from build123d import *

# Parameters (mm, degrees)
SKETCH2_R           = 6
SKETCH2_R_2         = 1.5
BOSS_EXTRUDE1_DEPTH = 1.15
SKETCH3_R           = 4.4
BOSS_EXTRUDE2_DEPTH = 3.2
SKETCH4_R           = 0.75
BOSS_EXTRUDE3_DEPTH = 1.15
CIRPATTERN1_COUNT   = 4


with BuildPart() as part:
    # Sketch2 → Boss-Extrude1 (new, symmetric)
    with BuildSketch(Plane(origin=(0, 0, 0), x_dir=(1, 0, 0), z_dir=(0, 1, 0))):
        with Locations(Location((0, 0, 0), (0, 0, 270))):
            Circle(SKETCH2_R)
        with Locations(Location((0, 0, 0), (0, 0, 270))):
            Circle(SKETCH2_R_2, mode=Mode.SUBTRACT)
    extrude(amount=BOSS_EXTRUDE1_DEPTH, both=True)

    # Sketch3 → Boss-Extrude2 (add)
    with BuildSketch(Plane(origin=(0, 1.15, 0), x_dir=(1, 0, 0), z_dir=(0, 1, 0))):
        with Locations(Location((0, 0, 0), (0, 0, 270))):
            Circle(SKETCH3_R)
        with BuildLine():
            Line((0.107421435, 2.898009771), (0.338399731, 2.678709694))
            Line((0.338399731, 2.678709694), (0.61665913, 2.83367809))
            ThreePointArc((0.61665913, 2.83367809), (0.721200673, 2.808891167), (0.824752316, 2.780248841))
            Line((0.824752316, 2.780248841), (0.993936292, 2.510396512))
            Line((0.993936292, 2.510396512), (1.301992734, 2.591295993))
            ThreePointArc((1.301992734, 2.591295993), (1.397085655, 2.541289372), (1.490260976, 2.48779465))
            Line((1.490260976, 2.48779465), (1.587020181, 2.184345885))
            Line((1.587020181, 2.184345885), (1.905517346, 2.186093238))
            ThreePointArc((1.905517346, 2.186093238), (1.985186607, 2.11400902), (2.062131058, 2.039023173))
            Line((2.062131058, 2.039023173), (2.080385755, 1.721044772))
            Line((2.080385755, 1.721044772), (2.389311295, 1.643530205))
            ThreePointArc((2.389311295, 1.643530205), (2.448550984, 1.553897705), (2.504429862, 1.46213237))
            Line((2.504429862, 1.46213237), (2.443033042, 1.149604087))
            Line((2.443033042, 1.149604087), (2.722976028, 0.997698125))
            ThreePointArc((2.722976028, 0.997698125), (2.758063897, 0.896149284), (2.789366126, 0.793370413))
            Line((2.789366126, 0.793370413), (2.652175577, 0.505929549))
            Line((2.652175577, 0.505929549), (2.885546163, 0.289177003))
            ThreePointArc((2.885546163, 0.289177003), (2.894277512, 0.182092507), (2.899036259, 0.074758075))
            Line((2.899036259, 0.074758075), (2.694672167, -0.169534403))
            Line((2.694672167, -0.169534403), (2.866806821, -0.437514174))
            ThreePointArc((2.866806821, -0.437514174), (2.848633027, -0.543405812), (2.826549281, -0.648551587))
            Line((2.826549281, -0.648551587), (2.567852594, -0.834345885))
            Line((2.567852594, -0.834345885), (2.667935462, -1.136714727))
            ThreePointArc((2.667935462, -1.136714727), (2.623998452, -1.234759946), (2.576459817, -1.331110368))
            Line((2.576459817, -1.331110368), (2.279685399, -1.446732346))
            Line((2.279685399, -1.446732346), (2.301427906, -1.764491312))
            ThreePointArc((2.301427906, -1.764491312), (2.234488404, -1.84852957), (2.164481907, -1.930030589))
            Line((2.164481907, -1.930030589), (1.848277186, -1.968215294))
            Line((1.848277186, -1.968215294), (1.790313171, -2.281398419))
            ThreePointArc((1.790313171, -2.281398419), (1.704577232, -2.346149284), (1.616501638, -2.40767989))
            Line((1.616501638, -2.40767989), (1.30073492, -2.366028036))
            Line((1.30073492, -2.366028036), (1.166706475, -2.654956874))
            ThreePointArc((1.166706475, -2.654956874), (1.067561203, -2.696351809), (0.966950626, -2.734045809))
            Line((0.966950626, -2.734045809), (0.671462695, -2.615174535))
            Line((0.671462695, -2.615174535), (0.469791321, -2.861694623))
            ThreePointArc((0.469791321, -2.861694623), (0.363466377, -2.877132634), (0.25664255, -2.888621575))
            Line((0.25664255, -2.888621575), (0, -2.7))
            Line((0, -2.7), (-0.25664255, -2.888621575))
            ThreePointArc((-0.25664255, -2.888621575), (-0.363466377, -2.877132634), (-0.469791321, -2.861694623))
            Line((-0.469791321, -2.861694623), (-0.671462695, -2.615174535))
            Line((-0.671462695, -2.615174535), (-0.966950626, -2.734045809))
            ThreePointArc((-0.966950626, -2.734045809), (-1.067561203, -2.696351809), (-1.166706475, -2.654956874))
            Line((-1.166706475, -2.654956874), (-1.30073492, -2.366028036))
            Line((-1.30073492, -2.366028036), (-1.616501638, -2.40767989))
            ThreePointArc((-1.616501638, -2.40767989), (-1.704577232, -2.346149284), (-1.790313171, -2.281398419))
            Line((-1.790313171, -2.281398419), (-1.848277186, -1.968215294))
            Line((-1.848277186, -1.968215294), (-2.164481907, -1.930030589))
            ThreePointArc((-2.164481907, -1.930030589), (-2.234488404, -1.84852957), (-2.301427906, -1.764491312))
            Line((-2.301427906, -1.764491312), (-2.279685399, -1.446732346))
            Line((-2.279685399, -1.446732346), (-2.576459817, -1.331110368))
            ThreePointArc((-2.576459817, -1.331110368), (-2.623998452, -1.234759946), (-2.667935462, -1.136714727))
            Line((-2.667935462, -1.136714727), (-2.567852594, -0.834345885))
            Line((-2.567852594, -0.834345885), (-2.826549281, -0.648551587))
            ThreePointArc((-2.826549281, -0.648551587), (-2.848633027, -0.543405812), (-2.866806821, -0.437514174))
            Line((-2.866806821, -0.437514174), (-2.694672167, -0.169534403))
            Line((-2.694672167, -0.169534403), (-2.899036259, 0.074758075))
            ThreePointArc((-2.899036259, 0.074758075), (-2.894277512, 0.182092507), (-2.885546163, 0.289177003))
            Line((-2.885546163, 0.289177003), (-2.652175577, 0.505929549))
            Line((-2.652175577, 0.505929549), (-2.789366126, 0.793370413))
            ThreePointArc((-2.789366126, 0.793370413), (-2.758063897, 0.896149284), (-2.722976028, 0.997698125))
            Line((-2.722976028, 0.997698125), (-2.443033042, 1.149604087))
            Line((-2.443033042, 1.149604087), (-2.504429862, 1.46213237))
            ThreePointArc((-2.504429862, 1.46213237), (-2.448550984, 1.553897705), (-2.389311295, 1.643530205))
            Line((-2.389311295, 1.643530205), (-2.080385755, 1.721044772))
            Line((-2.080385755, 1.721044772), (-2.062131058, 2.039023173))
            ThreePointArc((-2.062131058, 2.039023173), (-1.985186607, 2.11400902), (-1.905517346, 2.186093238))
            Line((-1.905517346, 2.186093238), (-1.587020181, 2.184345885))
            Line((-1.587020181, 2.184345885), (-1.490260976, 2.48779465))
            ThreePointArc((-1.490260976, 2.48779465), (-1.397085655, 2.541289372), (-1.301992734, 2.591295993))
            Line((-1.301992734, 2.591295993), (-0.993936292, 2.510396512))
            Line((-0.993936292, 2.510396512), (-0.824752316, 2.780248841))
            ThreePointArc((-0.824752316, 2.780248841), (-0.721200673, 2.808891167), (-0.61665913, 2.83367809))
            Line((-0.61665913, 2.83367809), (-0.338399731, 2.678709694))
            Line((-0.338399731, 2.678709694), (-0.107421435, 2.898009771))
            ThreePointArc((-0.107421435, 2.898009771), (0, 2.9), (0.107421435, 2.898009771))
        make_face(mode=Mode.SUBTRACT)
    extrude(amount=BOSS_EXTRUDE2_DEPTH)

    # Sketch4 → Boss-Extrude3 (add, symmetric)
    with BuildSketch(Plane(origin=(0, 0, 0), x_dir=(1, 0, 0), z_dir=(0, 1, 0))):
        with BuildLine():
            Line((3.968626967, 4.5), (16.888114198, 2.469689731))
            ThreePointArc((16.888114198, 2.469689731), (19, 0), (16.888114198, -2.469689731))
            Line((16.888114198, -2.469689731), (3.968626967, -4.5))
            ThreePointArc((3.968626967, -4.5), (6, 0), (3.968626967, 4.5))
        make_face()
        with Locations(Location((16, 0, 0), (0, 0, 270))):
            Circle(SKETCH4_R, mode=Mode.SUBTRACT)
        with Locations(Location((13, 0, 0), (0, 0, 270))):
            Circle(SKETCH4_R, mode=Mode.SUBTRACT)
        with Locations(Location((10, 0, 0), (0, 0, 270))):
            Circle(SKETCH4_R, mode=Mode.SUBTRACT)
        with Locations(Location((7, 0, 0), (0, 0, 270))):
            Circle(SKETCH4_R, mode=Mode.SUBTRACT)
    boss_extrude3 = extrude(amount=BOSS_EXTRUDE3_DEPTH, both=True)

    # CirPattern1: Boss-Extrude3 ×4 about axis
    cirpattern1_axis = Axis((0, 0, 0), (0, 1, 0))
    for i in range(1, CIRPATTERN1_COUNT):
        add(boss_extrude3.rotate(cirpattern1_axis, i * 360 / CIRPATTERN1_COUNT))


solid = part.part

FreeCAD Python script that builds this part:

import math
import FreeCAD as App
import Part
import Sketcher
Q = App.Units.Quantity

doc = App.newDocument("Part")
body = doc.addObject("PartDesign::Body", "Body")

# Sketch on XZ plane
sketch1 = body.newObject("Sketcher::SketchObject", "Sketch")
sketch1.AttachmentSupport = (doc.getObject("XZ_Plane"), [""])
sketch1.MapMode = "FlatFace"
sketch1.addGeometry(Part.Circle(App.Vector(0, 0, 0), App.Vector(0, 0, 1), 6), False)
sketch1.addGeometry(Part.Circle(App.Vector(0, 0, 0), App.Vector(0, 0, 1), 1.5), False)
sketch1.addConstraint(Sketcher.Constraint("Coincident", 0, 3, -1, 1))
sketch1.addConstraint(Sketcher.Constraint("Coincident", 1, 3, -1, 1))
sketch1.addConstraint(Sketcher.Constraint("Diameter", 0, Q("12 mm")))
sketch1.addConstraint(Sketcher.Constraint("Diameter", 1, Q("3 mm")))
pad1 = body.newObject("PartDesign::Pad", "Pad")
pad1.Profile = sketch1
pad1.Length = 2.3
pad1.Midplane = True

# Sketch on XZ plane
sketch2 = body.newObject("Sketcher::SketchObject", "Sketch001")
sketch2.AttachmentSupport = (doc.getObject("XZ_Plane"), [""])
sketch2.MapMode = "FlatFace"
sketch2.AttachmentOffset = App.Placement(App.Vector(0, 0, -1.15), App.Rotation())
sketch2.addGeometry(Part.Circle(App.Vector(0, 0, 0), App.Vector(0, 0, 1), 4.4), False)
sketch2.addGeometry(Part.ArcOfCircle(Part.Circle(App.Vector(0, -0.000001, 0), App.Vector(0, 0, 1), 2.899999), math.radians(-92.122829), math.radians(-87.877171)), False)
sketch2.addGeometry(Part.LineSegment(App.Vector(0.107421, -2.89801, 0), App.Vector(0.3384, -2.67871, 0)), False)
sketch2.addGeometry(Part.LineSegment(App.Vector(0.3384, -2.67871, 0), App.Vector(0.616659, -2.833678, 0)), False)
sketch2.addGeometry(Part.ArcOfCircle(Part.Circle(App.Vector(0, 0, 0), App.Vector(0, 0, 1), 2.9), math.radians(-77.722828), math.radians(-73.477172)), False)
sketch2.addGeometry(Part.LineSegment(App.Vector(0.824752, -2.780249, 0), App.Vector(0.993936, -2.510397, 0)), False)
sketch2.addGeometry(Part.LineSegment(App.Vector(0.993936, -2.510397, 0), App.Vector(1.301993, -2.591296, 0)), False)
sketch2.addGeometry(Part.ArcOfCircle(Part.Circle(App.Vector(0, 0, 0), App.Vector(0, 0, 1), 2.9), math.radians(-63.322828), math.radians(-59.077171)), False)
sketch2.addGeometry(Part.LineSegment(App.Vector(1.490261, -2.487795, 0), App.Vector(1.58702, -2.184346, 0)), False)
sketch2.addGeometry(Part.LineSegment(App.Vector(1.58702, -2.184346, 0), App.Vector(1.905517, -2.186093, 0)), False)
sketch2.addGeometry(Part.ArcOfCircle(Part.Circle(App.Vector(0, 0, 0), App.Vector(0, 0, 1), 2.9), math.radians(-48.922829), math.radians(-44.677171)), False)
sketch2.addGeometry(Part.LineSegment(App.Vector(2.062131, -2.039023, 0), App.Vector(2.080386, -1.721045, 0)), False)
sketch2.addGeometry(Part.LineSegment(App.Vector(2.080386, -1.721045, 0), App.Vector(2.389311, -1.64353, 0)), False)
sketch2.addGeometry(Part.ArcOfCircle(Part.Circle(App.Vector(0, 0, 0), App.Vector(0, 0, 1), 2.9), math.radians(-34.522829), math.radians(-30.277172)), False)
sketch2.addGeometry(Part.LineSegment(App.Vector(2.50443, -1.462132, 0), App.Vector(2.443033, -1.149604, 0)), False)
sketch2.addGeometry(Part.LineSegment(App.Vector(2.443033, -1.149604, 0), App.Vector(2.722976, -0.997698, 0)), False)
sketch2.addGeometry(Part.ArcOfCircle(Part.Circle(App.Vector(0, 0, 0), App.Vector(0, 0, 1), 2.9), math.radians(-20.122829), math.radians(-15.877171)), False)
sketch2.addGeometry(Part.LineSegment(App.Vector(2.789366, -0.79337, 0), App.Vector(2.652176, -0.50593, 0)), False)
sketch2.addGeometry(Part.LineSegment(App.Vector(2.652176, -0.50593, 0), App.Vector(2.885546, -0.289177, 0)), False)
sketch2.addGeometry(Part.ArcOfCircle(Part.Circle(App.Vector(0, 0, 0), App.Vector(0, 0, 1), 2.9), math.radians(-5.722829), math.radians(-1.477172)), False)
sketch2.addGeometry(Part.LineSegment(App.Vector(2.899036, -0.074758, 0), App.Vector(2.694672, 0.169534, 0)), False)
sketch2.addGeometry(Part.LineSegment(App.Vector(2.694672, 0.169534, 0), App.Vector(2.866807, 0.437514, 0)), False)
sketch2.addGeometry(Part.ArcOfCircle(Part.Circle(App.Vector(0, 0, 0), App.Vector(0, 0, 1), 2.9), math.radians(8.677172), math.radians(12.922829)), False)
sketch2.addGeometry(Part.LineSegment(App.Vector(2.826549, 0.648552, 0), App.Vector(2.567853, 0.834346, 0)), False)
sketch2.addGeometry(Part.LineSegment(App.Vector(2.567853, 0.834346, 0), App.Vector(2.667935, 1.136715, 0)), False)
sketch2.addGeometry(Part.ArcOfCircle(Part.Circle(App.Vector(0, 0, 0), App.Vector(0, 0, 1), 2.9), math.radians(23.077171), math.radians(27.322829)), False)
sketch2.addGeometry(Part.LineSegment(App.Vector(2.57646, 1.33111, 0), App.Vector(2.279685, 1.446732, 0)), False)
sketch2.addGeometry(Part.LineSegment(App.Vector(2.279685, 1.446732, 0), App.Vector(2.301428, 1.764491, 0)), False)
sketch2.addGeometry(Part.ArcOfCircle(Part.Circle(App.Vector(0, 0, 0), App.Vector(0, 0, 1), 2.9), math.radians(37.477171), math.radians(41.722829)), False)
sketch2.addGeometry(Part.LineSegment(App.Vector(2.164482, 1.930031, 0), App.Vector(1.848277, 1.968215, 0)), False)
sketch2.addGeometry(Part.LineSegment(App.Vector(1.848277, 1.968215, 0), App.Vector(1.790313, 2.281398, 0)), False)
sketch2.addGeometry(Part.ArcOfCircle(Part.Circle(App.Vector(0.000001, 0.000001, 0), App.Vector(0, 0, 1), 2.899999), math.radians(51.87717), math.radians(56.12283)), False)
sketch2.addGeometry(Part.LineSegment(App.Vector(1.616502, 2.40768, 0), App.Vector(1.300735, 2.366028, 0)), False)
sketch2.addGeometry(Part.LineSegment(App.Vector(1.300735, 2.366028, 0), App.Vector(1.166706, 2.654957, 0)), False)
sketch2.addGeometry(Part.ArcOfCircle(Part.Circle(App.Vector(0, 0, 0), App.Vector(0, 0, 1), 2.9), math.radians(66.277171), math.radians(70.522829)), False)
sketch2.addGeometry(Part.LineSegment(App.Vector(0.966951, 2.734046, 0), App.Vector(0.671463, 2.615175, 0)), False)
sketch2.addGeometry(Part.LineSegment(App.Vector(0.671463, 2.615175, 0), App.Vector(0.469791, 2.861695, 0)), False)
sketch2.addGeometry(Part.ArcOfCircle(Part.Circle(App.Vector(0, 0, 0), App.Vector(0, 0, 1), 2.9), math.radians(80.677171), math.radians(84.922829)), False)
sketch2.addGeometry(Part.LineSegment(App.Vector(0.256643, 2.888622, 0), App.Vector(0, 2.7, 0)), False)
sketch2.addGeometry(Part.LineSegment(App.Vector(0, 2.7, 0), App.Vector(-0.256643, 2.888622, 0)), False)
sketch2.addGeometry(Part.ArcOfCircle(Part.Circle(App.Vector(0, 0, 0), App.Vector(0, 0, 1), 2.9), math.radians(95.077171), math.radians(99.322829)), False)
sketch2.addGeometry(Part.LineSegment(App.Vector(-0.469791, 2.861695, 0), App.Vector(-0.671463, 2.615175, 0)), False)
sketch2.addGeometry(Part.LineSegment(App.Vector(-0.671463, 2.615175, 0), App.Vector(-0.966951, 2.734046, 0)), False)
sketch2.addGeometry(Part.ArcOfCircle(Part.Circle(App.Vector(0, 0, 0), App.Vector(0, 0, 1), 2.9), math.radians(109.477171), math.radians(113.722829)), False)
sketch2.addGeometry(Part.LineSegment(App.Vector(-1.166706, 2.654957, 0), App.Vector(-1.300735, 2.366028, 0)), False)
sketch2.addGeometry(Part.LineSegment(App.Vector(-1.300735, 2.366028, 0), App.Vector(-1.616502, 2.40768, 0)), False)
sketch2.addGeometry(Part.ArcOfCircle(Part.Circle(App.Vector(-0.000001, 0.000001, 0), App.Vector(0, 0, 1), 2.899999), math.radians(123.87717), math.radians(128.12283)), False)
sketch2.addGeometry(Part.LineSegment(App.Vector(-1.790313, 2.281398, 0), App.Vector(-1.848277, 1.968215, 0)), False)
sketch2.addGeometry(Part.LineSegment(App.Vector(-1.848277, 1.968215, 0), App.Vector(-2.164482, 1.930031, 0)), False)
sketch2.addGeometry(Part.ArcOfCircle(Part.Circle(App.Vector(0, 0, 0), App.Vector(0, 0, 1), 2.9), math.radians(138.277171), math.radians(142.522829)), False)
sketch2.addGeometry(Part.LineSegment(App.Vector(-2.301428, 1.764491, 0), App.Vector(-2.279685, 1.446732, 0)), False)
sketch2.addGeometry(Part.LineSegment(App.Vector(-2.279685, 1.446732, 0), App.Vector(-2.57646, 1.33111, 0)), False)
sketch2.addGeometry(Part.ArcOfCircle(Part.Circle(App.Vector(0, 0, 0), App.Vector(0, 0, 1), 2.9), math.radians(152.677171), math.radians(156.922829)), False)
sketch2.addGeometry(Part.LineSegment(App.Vector(-2.667935, 1.136715, 0), App.Vector(-2.567853, 0.834346, 0)), False)
sketch2.addGeometry(Part.LineSegment(App.Vector(-2.567853, 0.834346, 0), App.Vector(-2.826549, 0.648552, 0)), False)
sketch2.addGeometry(Part.ArcOfCircle(Part.Circle(App.Vector(0, 0, 0), App.Vector(0, 0, 1), 2.9), math.radians(167.077171), math.radians(171.322828)), False)
sketch2.addGeometry(Part.LineSegment(App.Vector(-2.866807, 0.437514, 0), App.Vector(-2.694672, 0.169534, 0)), False)
sketch2.addGeometry(Part.LineSegment(App.Vector(-2.694672, 0.169534, 0), App.Vector(-2.899036, -0.074758, 0)), False)
sketch2.addGeometry(Part.ArcOfCircle(Part.Circle(App.Vector(0, 0, 0), App.Vector(0, 0, 1), 2.9), math.radians(-178.522828), math.radians(-174.277171)), False)
sketch2.addGeometry(Part.LineSegment(App.Vector(-2.885546, -0.289177, 0), App.Vector(-2.652176, -0.50593, 0)), False)
sketch2.addGeometry(Part.LineSegment(App.Vector(-2.652176, -0.50593, 0), App.Vector(-2.789366, -0.79337, 0)), False)
sketch2.addGeometry(Part.ArcOfCircle(Part.Circle(App.Vector(0, 0, 0), App.Vector(0, 0, 1), 2.9), math.radians(-164.122829), math.radians(-159.877171)), False)
sketch2.addGeometry(Part.LineSegment(App.Vector(-2.722976, -0.997698, 0), App.Vector(-2.443033, -1.149604, 0)), False)
sketch2.addGeometry(Part.LineSegment(App.Vector(-2.443033, -1.149604, 0), App.Vector(-2.50443, -1.462132, 0)), False)
sketch2.addGeometry(Part.ArcOfCircle(Part.Circle(App.Vector(0, 0, 0), App.Vector(0, 0, 1), 2.9), math.radians(-149.722828), math.radians(-145.477171)), False)
sketch2.addGeometry(Part.LineSegment(App.Vector(-2.389311, -1.64353, 0), App.Vector(-2.080386, -1.721045, 0)), False)
sketch2.addGeometry(Part.LineSegment(App.Vector(-2.080386, -1.721045, 0), App.Vector(-2.062131, -2.039023, 0)), False)
sketch2.addGeometry(Part.ArcOfCircle(Part.Circle(App.Vector(0, 0, 0), App.Vector(0, 0, 1), 2.9), math.radians(-135.322829), math.radians(-131.077171)), False)
sketch2.addGeometry(Part.LineSegment(App.Vector(-1.905517, -2.186093, 0), App.Vector(-1.58702, -2.184346, 0)), False)
sketch2.addGeometry(Part.LineSegment(App.Vector(-1.58702, -2.184346, 0), App.Vector(-1.490261, -2.487795, 0)), False)
sketch2.addGeometry(Part.ArcOfCircle(Part.Circle(App.Vector(0, 0, 0), App.Vector(0, 0, 1), 2.9), math.radians(-120.922829), math.radians(-116.677172)), False)
sketch2.addGeometry(Part.LineSegment(App.Vector(-1.301993, -2.591296, 0), App.Vector(-0.993936, -2.510397, 0)), False)
sketch2.addGeometry(Part.LineSegment(App.Vector(-0.993936, -2.510397, 0), App.Vector(-0.824752, -2.780249, 0)), False)
sketch2.addGeometry(Part.ArcOfCircle(Part.Circle(App.Vector(0, 0, 0), App.Vector(0, 0, 1), 2.9), math.radians(-106.522828), math.radians(-102.277172)), False)
sketch2.addGeometry(Part.LineSegment(App.Vector(-0.616659, -2.833678, 0), App.Vector(-0.3384, -2.67871, 0)), False)
sketch2.addGeometry(Part.LineSegment(App.Vector(-0.3384, -2.67871, 0), App.Vector(-0.107421, -2.89801, 0)), False)
sketch2.addConstraint(Sketcher.Constraint("Coincident", 1, 2, 2, 1))
sketch2.addConstraint(Sketcher.Constraint("Coincident", 2, 2, 3, 1))
sketch2.addConstraint(Sketcher.Constraint("Coincident", 3, 2, 4, 1))
sketch2.addConstraint(Sketcher.Constraint("Coincident", 4, 2, 5, 1))
sketch2.addConstraint(Sketcher.Constraint("Coincident", 5, 2, 6, 1))
sketch2.addConstraint(Sketcher.Constraint("Coincident", 6, 2, 7, 1))
sketch2.addConstraint(Sketcher.Constraint("Coincident", 7, 2, 8, 1))
sketch2.addConstraint(Sketcher.Constraint("Coincident", 8, 2, 9, 1))
sketch2.addConstraint(Sketcher.Constraint("Coincident", 9, 2, 10, 1))
sketch2.addConstraint(Sketcher.Constraint("Coincident", 10, 2, 11, 1))
sketch2.addConstraint(Sketcher.Constraint("Coincident", 11, 2, 12, 1))
sketch2.addConstraint(Sketcher.Constraint("Coincident", 12, 2, 13, 1))
sketch2.addConstraint(Sketcher.Constraint("Coincident", 13, 2, 14, 1))
sketch2.addConstraint(Sketcher.Constraint("Coincident", 14, 2, 15, 1))
sketch2.addConstraint(Sketcher.Constraint("Coincident", 15, 2, 16, 1))
sketch2.addConstraint(Sketcher.Constraint("Coincident", 16, 2, 17, 1))
sketch2.addConstraint(Sketcher.Constraint("Coincident", 17, 2, 18, 1))
sketch2.addConstraint(Sketcher.Constraint("Coincident", 18, 2, 19, 1))
sketch2.addConstraint(Sketcher.Constraint("Coincident", 19, 2, 20, 1))
sketch2.addConstraint(Sketcher.Constraint("Coincident", 20, 2, 21, 1))
sketch2.addConstraint(Sketcher.Constraint("Coincident", 21, 2, 22, 1))
sketch2.addConstraint(Sketcher.Constraint("Coincident", 22, 2, 23, 1))
sketch2.addConstraint(Sketcher.Constraint("Coincident", 23, 2, 24, 1))
sketch2.addConstraint(Sketcher.Constraint("Coincident", 24, 2, 25, 1))
sketch2.addConstraint(Sketcher.Constraint("Coincident", 25, 2, 26, 1))
sketch2.addConstraint(Sketcher.Constraint("Coincident", 26, 2, 27, 1))
sketch2.addConstraint(Sketcher.Constraint("Coincident", 27, 2, 28, 1))
sketch2.addConstraint(Sketcher.Constraint("Coincident", 28, 2, 29, 1))
sketch2.addConstraint(Sketcher.Constraint("Coincident", 29, 2, 30, 1))
sketch2.addConstraint(Sketcher.Constraint("Coincident", 30, 2, 31, 1))
sketch2.addConstraint(Sketcher.Constraint("Coincident", 31, 2, 32, 1))
sketch2.addConstraint(Sketcher.Constraint("Coincident", 32, 2, 33, 1))
sketch2.addConstraint(Sketcher.Constraint("Coincident", 33, 2, 34, 1))
sketch2.addConstraint(Sketcher.Constraint("Coincident", 34, 2, 35, 1))
sketch2.addConstraint(Sketcher.Constraint("Coincident", 35, 2, 36, 1))
sketch2.addConstraint(Sketcher.Constraint("Coincident", 36, 2, 37, 1))
sketch2.addConstraint(Sketcher.Constraint("Coincident", 37, 2, 38, 1))
sketch2.addConstraint(Sketcher.Constraint("Coincident", 38, 2, 39, 1))
sketch2.addConstraint(Sketcher.Constraint("Coincident", 39, 2, 40, 1))
sketch2.addConstraint(Sketcher.Constraint("Coincident", 40, 2, 41, 1))
sketch2.addConstraint(Sketcher.Constraint("Coincident", 41, 2, 42, 1))
sketch2.addConstraint(Sketcher.Constraint("Coincident", 42, 2, 43, 1))
sketch2.addConstraint(Sketcher.Constraint("Coincident", 43, 2, 44, 1))
sketch2.addConstraint(Sketcher.Constraint("Coincident", 44, 2, 45, 1))
sketch2.addConstraint(Sketcher.Constraint("Coincident", 45, 2, 46, 1))
sketch2.addConstraint(Sketcher.Constraint("Coincident", 46, 2, 47, 1))
sketch2.addConstraint(Sketcher.Constraint("Coincident", 47, 2, 48, 1))
sketch2.addConstraint(Sketcher.Constraint("Coincident", 48, 2, 49, 1))
sketch2.addConstraint(Sketcher.Constraint("Coincident", 49, 2, 50, 1))
sketch2.addConstraint(Sketcher.Constraint("Coincident", 50, 2, 51, 1))
sketch2.addConstraint(Sketcher.Constraint("Coincident", 51, 2, 52, 1))
sketch2.addConstraint(Sketcher.Constraint("Coincident", 52, 2, 53, 1))
sketch2.addConstraint(Sketcher.Constraint("Coincident", 53, 2, 54, 1))
sketch2.addConstraint(Sketcher.Constraint("Coincident", 54, 2, 55, 1))
sketch2.addConstraint(Sketcher.Constraint("Coincident", 55, 2, 56, 1))
sketch2.addConstraint(Sketcher.Constraint("Coincident", 56, 2, 57, 1))
sketch2.addConstraint(Sketcher.Constraint("Coincident", 57, 2, 58, 1))
sketch2.addConstraint(Sketcher.Constraint("Coincident", 58, 2, 59, 1))
sketch2.addConstraint(Sketcher.Constraint("Coincident", 59, 2, 60, 1))
sketch2.addConstraint(Sketcher.Constraint("Coincident", 60, 2, 61, 1))
sketch2.addConstraint(Sketcher.Constraint("Coincident", 61, 2, 62, 1))
sketch2.addConstraint(Sketcher.Constraint("Coincident", 62, 2, 63, 1))
sketch2.addConstraint(Sketcher.Constraint("Coincident", 63, 2, 64, 1))
sketch2.addConstraint(Sketcher.Constraint("Coincident", 64, 2, 65, 1))
sketch2.addConstraint(Sketcher.Constraint("Coincident", 65, 2, 66, 1))
sketch2.addConstraint(Sketcher.Constraint("Coincident", 66, 2, 67, 1))
sketch2.addConstraint(Sketcher.Constraint("Coincident", 67, 2, 68, 1))
sketch2.addConstraint(Sketcher.Constraint("Coincident", 68, 2, 69, 1))
sketch2.addConstraint(Sketcher.Constraint("Coincident", 69, 2, 70, 1))
sketch2.addConstraint(Sketcher.Constraint("Coincident", 70, 2, 71, 1))
sketch2.addConstraint(Sketcher.Constraint("Coincident", 71, 2, 72, 1))
sketch2.addConstraint(Sketcher.Constraint("Coincident", 72, 2, 73, 1))
sketch2.addConstraint(Sketcher.Constraint("Coincident", 73, 2, 74, 1))
sketch2.addConstraint(Sketcher.Constraint("Coincident", 74, 2, 75, 1))
sketch2.addConstraint(Sketcher.Constraint("Coincident", 75, 2, 1, 1))
sketch2.addConstraint(Sketcher.Constraint("Coincident", 0, 3, -1, 1))
sketch2.addConstraint(Sketcher.Constraint("Coincident", 1, 3, -1, 1))
sketch2.addConstraint(Sketcher.Constraint("Coincident", 4, 3, -1, 1))
sketch2.addConstraint(Sketcher.Constraint("Coincident", 7, 3, -1, 1))
sketch2.addConstraint(Sketcher.Constraint("Coincident", 10, 3, -1, 1))
sketch2.addConstraint(Sketcher.Constraint("Coincident", 13, 3, -1, 1))
sketch2.addConstraint(Sketcher.Constraint("Coincident", 16, 3, -1, 1))
sketch2.addConstraint(Sketcher.Constraint("Coincident", 19, 3, -1, 1))
sketch2.addConstraint(Sketcher.Constraint("Coincident", 22, 3, -1, 1))
sketch2.addConstraint(Sketcher.Constraint("Coincident", 25, 3, -1, 1))
sketch2.addConstraint(Sketcher.Constraint("Coincident", 28, 3, -1, 1))
sketch2.addConstraint(Sketcher.Constraint("Coincident", 31, 3, -1, 1))
sketch2.addConstraint(Sketcher.Constraint("Coincident", 34, 3, -1, 1))
sketch2.addConstraint(Sketcher.Constraint("Coincident", 37, 3, -1, 1))
sketch2.addConstraint(Sketcher.Constraint("Coincident", 40, 3, -1, 1))
sketch2.addConstraint(Sketcher.Constraint("Coincident", 43, 3, -1, 1))
sketch2.addConstraint(Sketcher.Constraint("Coincident", 46, 3, -1, 1))
sketch2.addConstraint(Sketcher.Constraint("Coincident", 49, 3, -1, 1))
sketch2.addConstraint(Sketcher.Constraint("Coincident", 52, 3, -1, 1))
sketch2.addConstraint(Sketcher.Constraint("Coincident", 55, 3, -1, 1))
sketch2.addConstraint(Sketcher.Constraint("Coincident", 58, 3, -1, 1))
sketch2.addConstraint(Sketcher.Constraint("Coincident", 61, 3, -1, 1))
sketch2.addConstraint(Sketcher.Constraint("Coincident", 64, 3, -1, 1))
sketch2.addConstraint(Sketcher.Constraint("Coincident", 67, 3, -1, 1))
sketch2.addConstraint(Sketcher.Constraint("Coincident", 70, 3, -1, 1))
sketch2.addConstraint(Sketcher.Constraint("Coincident", 73, 3, -1, 1))
sketch2.addConstraint(Sketcher.Constraint("Equal", 1, 4))
sketch2.addConstraint(Sketcher.Constraint("Equal", 4, 7))
sketch2.addConstraint(Sketcher.Constraint("Equal", 7, 10))
sketch2.addConstraint(Sketcher.Constraint("Equal", 10, 13))
sketch2.addConstraint(Sketcher.Constraint("Equal", 13, 16))
sketch2.addConstraint(Sketcher.Constraint("Equal", 16, 19))
sketch2.addConstraint(Sketcher.Constraint("Equal", 19, 22))
sketch2.addConstraint(Sketcher.Constraint("Equal", 22, 25))
sketch2.addConstraint(Sketcher.Constraint("Equal", 25, 28))
sketch2.addConstraint(Sketcher.Constraint("Equal", 28, 31))
sketch2.addConstraint(Sketcher.Constraint("Equal", 31, 34))
sketch2.addConstraint(Sketcher.Constraint("Equal", 34, 37))
sketch2.addConstraint(Sketcher.Constraint("Equal", 37, 40))
sketch2.addConstraint(Sketcher.Constraint("Equal", 40, 43))
sketch2.addConstraint(Sketcher.Constraint("Equal", 43, 46))
sketch2.addConstraint(Sketcher.Constraint("Equal", 46, 49))
sketch2.addConstraint(Sketcher.Constraint("Equal", 49, 52))
sketch2.addConstraint(Sketcher.Constraint("Equal", 52, 55))
sketch2.addConstraint(Sketcher.Constraint("Equal", 55, 58))
sketch2.addConstraint(Sketcher.Constraint("Equal", 58, 61))
sketch2.addConstraint(Sketcher.Constraint("Equal", 61, 64))
sketch2.addConstraint(Sketcher.Constraint("Equal", 64, 67))
sketch2.addConstraint(Sketcher.Constraint("Equal", 67, 70))
sketch2.addConstraint(Sketcher.Constraint("Equal", 70, 73))
sketch2.addConstraint(Sketcher.Constraint("Symmetric", 35, 2, 41, 2, -2))
sketch2.addConstraint(Sketcher.Constraint("Symmetric", 32, 2, 44, 2, -2))
sketch2.addConstraint(Sketcher.Constraint("Symmetric", 29, 2, 47, 2, -2))
sketch2.addConstraint(Sketcher.Constraint("Symmetric", 26, 2, 50, 2, -2))
sketch2.addConstraint(Sketcher.Constraint("Symmetric", 23, 2, 53, 2, -2))
sketch2.addConstraint(Sketcher.Constraint("Symmetric", 20, 2, 56, 2, -2))
sketch2.addConstraint(Sketcher.Constraint("Symmetric", 17, 2, 59, 2, -2))
sketch2.addConstraint(Sketcher.Constraint("Symmetric", 14, 2, 62, 2, -2))
sketch2.addConstraint(Sketcher.Constraint("Symmetric", 11, 2, 65, 2, -2))
sketch2.addConstraint(Sketcher.Constraint("Symmetric", 8, 2, 68, 2, -2))
sketch2.addConstraint(Sketcher.Constraint("Symmetric", 5, 2, 71, 2, -2))
sketch2.addConstraint(Sketcher.Constraint("Symmetric", 2, 2, 74, 2, -2))
sketch2.addConstraint(Sketcher.Constraint("PointOnObject", 38, 2, -2))
sketch2.addConstraint(Sketcher.Constraint("Horizontal", 37, 2, 39, 2))
sketch2.addConstraint(Sketcher.Constraint("Horizontal", 36, 2, 40, 2))
sketch2.addConstraint(Sketcher.Constraint("Horizontal", 34, 2, 42, 2))
sketch2.addConstraint(Sketcher.Constraint("Horizontal", 33, 2, 43, 2))
sketch2.addConstraint(Sketcher.Constraint("Horizontal", 31, 2, 45, 2))
sketch2.addConstraint(Sketcher.Constraint("Horizontal", 30, 2, 46, 2))
sketch2.addConstraint(Sketcher.Constraint("Horizontal", 28, 2, 48, 2))
sketch2.addConstraint(Sketcher.Constraint("Horizontal", 27, 2, 49, 2))
sketch2.addConstraint(Sketcher.Constraint("Horizontal", 25, 2, 51, 2))
sketch2.addConstraint(Sketcher.Constraint("Horizontal", 24, 2, 52, 2))
sketch2.addConstraint(Sketcher.Constraint("Horizontal", 22, 2, 54, 2))
sketch2.addConstraint(Sketcher.Constraint("Horizontal", 21, 2, 55, 2))
sketch2.addConstraint(Sketcher.Constraint("Horizontal", 19, 2, 57, 2))
sketch2.addConstraint(Sketcher.Constraint("Horizontal", 18, 2, 58, 2))
sketch2.addConstraint(Sketcher.Constraint("Horizontal", 16, 2, 60, 2))
sketch2.addConstraint(Sketcher.Constraint("Horizontal", 15, 2, 61, 2))
sketch2.addConstraint(Sketcher.Constraint("Horizontal", 13, 2, 63, 2))
sketch2.addConstraint(Sketcher.Constraint("Horizontal", 12, 2, 64, 2))
sketch2.addConstraint(Sketcher.Constraint("Horizontal", 10, 2, 66, 2))
sketch2.addConstraint(Sketcher.Constraint("Horizontal", 9, 2, 67, 2))
sketch2.addConstraint(Sketcher.Constraint("Horizontal", 7, 2, 69, 2))
sketch2.addConstraint(Sketcher.Constraint("Horizontal", 6, 2, 70, 2))
sketch2.addConstraint(Sketcher.Constraint("Horizontal", 4, 2, 72, 2))
sketch2.addConstraint(Sketcher.Constraint("Horizontal", 3, 2, 73, 2))
sketch2.addConstraint(Sketcher.Constraint("Horizontal", 1, 2, 75, 2))
sketch2.addConstraint(Sketcher.Constraint("Equal", 2, 3))
sketch2.addConstraint(Sketcher.Constraint("Equal", 3, 5))
sketch2.addConstraint(Sketcher.Constraint("Equal", 5, 6))
sketch2.addConstraint(Sketcher.Constraint("Equal", 6, 8))
sketch2.addConstraint(Sketcher.Constraint("Equal", 8, 9))
sketch2.addConstraint(Sketcher.Constraint("Equal", 9, 11))
sketch2.addConstraint(Sketcher.Constraint("Equal", 11, 12))
sketch2.addConstraint(Sketcher.Constraint("Equal", 12, 14))
sketch2.addConstraint(Sketcher.Constraint("Equal", 14, 15))
sketch2.addConstraint(Sketcher.Constraint("Equal", 15, 17))
sketch2.addConstraint(Sketcher.Constraint("Equal", 17, 18))
sketch2.addConstraint(Sketcher.Constraint("Equal", 18, 20))
sketch2.addConstraint(Sketcher.Constraint("Equal", 20, 21))
sketch2.addConstraint(Sketcher.Constraint("Equal", 21, 23))
sketch2.addConstraint(Sketcher.Constraint("Equal", 23, 24))
sketch2.addConstraint(Sketcher.Constraint("Equal", 24, 26))
sketch2.addConstraint(Sketcher.Constraint("Equal", 26, 27))
sketch2.addConstraint(Sketcher.Constraint("Equal", 27, 29))
sketch2.addConstraint(Sketcher.Constraint("Equal", 29, 30))
sketch2.addConstraint(Sketcher.Constraint("Equal", 30, 32))
sketch2.addConstraint(Sketcher.Constraint("Equal", 32, 33))
sketch2.addConstraint(Sketcher.Constraint("Equal", 33, 35))
sketch2.addConstraint(Sketcher.Constraint("Equal", 35, 36))
sketch2.addConstraint(Sketcher.Constraint("Equal", 36, 38))
sketch2.addConstraint(Sketcher.Constraint("Diameter", 0, Q("8.8 mm")))
sketch2.addConstraint(Sketcher.Constraint("Radius", 1, Q("2.899999 mm")))
sketch2.addConstraint(Sketcher.Constraint("DistanceY", -1, 1, 38, 2, Q("2.7 mm")))
sketch2.addConstraint(Sketcher.Constraint("Distance", 2, Q("0.318502 mm")))
sketch2.addConstraint(Sketcher.Constraint("DistanceX", -1, 1, 2, 2, Q("0.3384 mm")))
sketch2.addConstraint(Sketcher.Constraint("DistanceY", 15, 2, -1, 1, Q("0.997698 mm")))
sketch2.addConstraint(Sketcher.Constraint("DistanceY", -1, 1, 30, 2, Q("2.281398 mm")))
sketch2.addConstraint(Sketcher.Constraint("DistanceX", -1, 1, 31, 2, Q("1.616502 mm")))
sketch2.addConstraint(Sketcher.Constraint("DistanceX", -1, 1, 1, 2, Q("0.107421 mm")))
sketch2.addConstraint(Sketcher.Constraint("DistanceY", 4, 2, -1, 1, Q("2.780249 mm")))
sketch2.addConstraint(Sketcher.Constraint("DistanceX", -1, 1, 7, 2, Q("1.490261 mm")))
sketch2.addConstraint(Sketcher.Constraint("DistanceX", -1, 1, 8, 2, Q("1.58702 mm")))
sketch2.addConstraint(Sketcher.Constraint("DistanceX", -1, 1, 10, 2, Q("2.062131 mm")))
sketch2.addConstraint(Sketcher.Constraint("DistanceX", -1, 1, 12, 2, Q("2.389311 mm")))
sketch2.addConstraint(Sketcher.Constraint("DistanceX", -1, 1, 13, 2, Q("2.50443 mm")))
sketch2.addConstraint(Sketcher.Constraint("DistanceY", 16, 2, -1, 1, Q("0.79337 mm")))
sketch2.addConstraint(Sketcher.Constraint("DistanceY", 17, 2, -1, 1, Q("0.50593 mm")))
sketch2.addConstraint(Sketcher.Constraint("DistanceY", 19, 2, -1, 1, Q("0.074758 mm")))
sketch2.addConstraint(Sketcher.Constraint("DistanceX", -1, 1, 22, 2, Q("2.826549 mm")))
sketch2.addConstraint(Sketcher.Constraint("DistanceX", -1, 1, 25, 2, Q("2.57646 mm")))
sketch2.addConstraint(Sketcher.Constraint("DistanceY", -1, 1, 27, 2, Q("1.764491 mm")))
sketch2.addConstraint(Sketcher.Constraint("DistanceX", -1, 1, 28, 2, Q("2.164482 mm")))
sketch2.addConstraint(Sketcher.Constraint("DistanceY", -1, 1, 32, 2, Q("2.366028 mm")))
sketch2.addConstraint(Sketcher.Constraint("DistanceX", -1, 1, 34, 2, Q("0.966951 mm")))
sketch2.addConstraint(Sketcher.Constraint("DistanceX", -1, 1, 36, 2, Q("0.469791 mm")))
sketch2.addConstraint(Sketcher.Constraint("DistanceX", -1, 1, 5, 2, Q("0.993936 mm")))
sketch2.addConstraint(Sketcher.Constraint("DistanceX", -1, 1, 20, 2, Q("2.694672 mm")))
sketch2.addConstraint(Sketcher.Constraint("DistanceX", -1, 1, 23, 2, Q("2.567853 mm")))
pad2 = body.newObject("PartDesign::Pad", "Pad001")
pad2.Profile = sketch2
pad2.Length = 3.2
pad2.Reversed = True

# Sketch on XZ plane
sketch3 = body.newObject("Sketcher::SketchObject", "Sketch002")
sketch3.AttachmentSupport = (doc.getObject("XZ_Plane"), [""])
sketch3.MapMode = "FlatFace"
sketch3.addGeometry(Part.LineSegment(App.Vector(16.888114, -2.46969, 0), App.Vector(3.968627, -4.5, 0)), False)
sketch3.addGeometry(Part.ArcOfCircle(Part.Circle(App.Vector(0, 0, 0), App.Vector(0, 0, 1), 6), math.radians(-48.590378), math.radians(48.590378)), False)
sketch3.addGeometry(Part.LineSegment(App.Vector(3.968627, 4.5, 0), App.Vector(16.888114, 2.46969, 0)), False)
sketch3.addGeometry(Part.ArcOfCircle(Part.Circle(App.Vector(16.5, 0, 0), App.Vector(0, 0, 1), 2.5), math.radians(-81.068955), math.radians(81.068955)), False)
sketch3.addGeometry(Part.Circle(App.Vector(16, 0, 0), App.Vector(0, 0, 1), 0.75), False)
sketch3.addGeometry(Part.Circle(App.Vector(13, 0, 0), App.Vector(0, 0, 1), 0.75), False)
sketch3.addGeometry(Part.Circle(App.Vector(10, 0, 0), App.Vector(0, 0, 1), 0.75), False)
sketch3.addGeometry(Part.Circle(App.Vector(7, 0, 0), App.Vector(0, 0, 1), 0.75), False)
sketch3.addConstraint(Sketcher.Constraint("Coincident", 0, 2, 1, 1))
sketch3.addConstraint(Sketcher.Constraint("Coincident", 1, 2, 2, 1))
sketch3.addConstraint(Sketcher.Constraint("Tangent", 2, 2, 3, 2))
sketch3.addConstraint(Sketcher.Constraint("Tangent", 3, 1, 0, 1))
sketch3.addConstraint(Sketcher.Constraint("Coincident", 1, 3, -1, 1))
sketch3.addConstraint(Sketcher.Constraint("Equal", 4, 5))
sketch3.addConstraint(Sketcher.Constraint("Equal", 5, 6))
sketch3.addConstraint(Sketcher.Constraint("Equal", 6, 7))
sketch3.addConstraint(Sketcher.Constraint("Symmetric", 2, 2, 3, 1, -1))
sketch3.addConstraint(Sketcher.Constraint("PointOnObject", 4, 3, -1))
sketch3.addConstraint(Sketcher.Constraint("PointOnObject", 5, 3, -1))
sketch3.addConstraint(Sketcher.Constraint("PointOnObject", 6, 3, -1))
sketch3.addConstraint(Sketcher.Constraint("PointOnObject", 7, 3, -1))
sketch3.addConstraint(Sketcher.Constraint("Radius", 1, Q("6 mm")))
sketch3.addConstraint(Sketcher.Constraint("Diameter", 4, Q("1.5 mm")))
sketch3.addConstraint(Sketcher.Constraint("Radius", 3, Q("2.5 mm")))
sketch3.addConstraint(Sketcher.Constraint("DistanceX", -1, 1, 4, 3, Q("16 mm")))
sketch3.addConstraint(Sketcher.Constraint("DistanceX", -1, 1, 5, 3, Q("13 mm")))
sketch3.addConstraint(Sketcher.Constraint("DistanceX", -1, 1, 6, 3, Q("10 mm")))
sketch3.addConstraint(Sketcher.Constraint("DistanceX", -1, 1, 7, 3, Q("7 mm")))
sketch3.addConstraint(Sketcher.Constraint("DistanceY", 0, 2, 1, 2, Q("9 mm")))
sketch3.addConstraint(Sketcher.Constraint("DistanceX", -1, 1, 3, 3, Q("16.5 mm")))
pad3 = body.newObject("PartDesign::Pad", "Pad002")
pad3.Profile = sketch3
pad3.Length = 2.3
pad3.Midplane = True
doc.recompute()

polarpattern = body.newObject("PartDesign::PolarPattern", "PolarPattern")
polarpattern.Originals = [pad3]
polarpattern.Axis = (doc.getObject("Y_Axis"), [""])
polarpattern.Angle = 360
polarpattern.Occurrences = 4
body.Tip = polarpattern

doc.recompute()
